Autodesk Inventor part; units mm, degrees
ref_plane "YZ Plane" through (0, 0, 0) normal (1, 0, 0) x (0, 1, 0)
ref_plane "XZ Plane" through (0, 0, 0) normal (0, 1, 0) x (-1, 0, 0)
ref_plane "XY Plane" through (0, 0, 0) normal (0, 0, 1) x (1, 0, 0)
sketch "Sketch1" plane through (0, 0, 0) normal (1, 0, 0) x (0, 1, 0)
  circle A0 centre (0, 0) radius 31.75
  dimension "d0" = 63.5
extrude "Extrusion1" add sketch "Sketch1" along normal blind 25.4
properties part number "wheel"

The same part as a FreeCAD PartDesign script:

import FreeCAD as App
import Part
import Sketcher
from FreeCAD import Vector
Q = App.Units.Quantity

doc = App.newDocument("Part")
body = doc.addObject("PartDesign::Body", "Body")

sketch1 = body.newObject("Sketcher::SketchObject", "Sketch")
sketch1.AttachmentSupport = (doc.getObject("YZ_Plane"), [""])
sketch1.MapMode = "FlatFace"
sketch1.addGeometry(Part.Circle(Vector(0, 0, 0), Vector(0, 0, 1), 31.75), False)
sketch1.addConstraint([
    Sketcher.Constraint("Coincident", 0, 3, -1, 1),
    Sketcher.Constraint("Diameter", 0, Q("2.5 in")),
])
pad1 = body.newObject("PartDesign::Pad", "Pad")
pad1.Profile = sketch1
pad1.Length = Q("1 in")

doc.recompute()
